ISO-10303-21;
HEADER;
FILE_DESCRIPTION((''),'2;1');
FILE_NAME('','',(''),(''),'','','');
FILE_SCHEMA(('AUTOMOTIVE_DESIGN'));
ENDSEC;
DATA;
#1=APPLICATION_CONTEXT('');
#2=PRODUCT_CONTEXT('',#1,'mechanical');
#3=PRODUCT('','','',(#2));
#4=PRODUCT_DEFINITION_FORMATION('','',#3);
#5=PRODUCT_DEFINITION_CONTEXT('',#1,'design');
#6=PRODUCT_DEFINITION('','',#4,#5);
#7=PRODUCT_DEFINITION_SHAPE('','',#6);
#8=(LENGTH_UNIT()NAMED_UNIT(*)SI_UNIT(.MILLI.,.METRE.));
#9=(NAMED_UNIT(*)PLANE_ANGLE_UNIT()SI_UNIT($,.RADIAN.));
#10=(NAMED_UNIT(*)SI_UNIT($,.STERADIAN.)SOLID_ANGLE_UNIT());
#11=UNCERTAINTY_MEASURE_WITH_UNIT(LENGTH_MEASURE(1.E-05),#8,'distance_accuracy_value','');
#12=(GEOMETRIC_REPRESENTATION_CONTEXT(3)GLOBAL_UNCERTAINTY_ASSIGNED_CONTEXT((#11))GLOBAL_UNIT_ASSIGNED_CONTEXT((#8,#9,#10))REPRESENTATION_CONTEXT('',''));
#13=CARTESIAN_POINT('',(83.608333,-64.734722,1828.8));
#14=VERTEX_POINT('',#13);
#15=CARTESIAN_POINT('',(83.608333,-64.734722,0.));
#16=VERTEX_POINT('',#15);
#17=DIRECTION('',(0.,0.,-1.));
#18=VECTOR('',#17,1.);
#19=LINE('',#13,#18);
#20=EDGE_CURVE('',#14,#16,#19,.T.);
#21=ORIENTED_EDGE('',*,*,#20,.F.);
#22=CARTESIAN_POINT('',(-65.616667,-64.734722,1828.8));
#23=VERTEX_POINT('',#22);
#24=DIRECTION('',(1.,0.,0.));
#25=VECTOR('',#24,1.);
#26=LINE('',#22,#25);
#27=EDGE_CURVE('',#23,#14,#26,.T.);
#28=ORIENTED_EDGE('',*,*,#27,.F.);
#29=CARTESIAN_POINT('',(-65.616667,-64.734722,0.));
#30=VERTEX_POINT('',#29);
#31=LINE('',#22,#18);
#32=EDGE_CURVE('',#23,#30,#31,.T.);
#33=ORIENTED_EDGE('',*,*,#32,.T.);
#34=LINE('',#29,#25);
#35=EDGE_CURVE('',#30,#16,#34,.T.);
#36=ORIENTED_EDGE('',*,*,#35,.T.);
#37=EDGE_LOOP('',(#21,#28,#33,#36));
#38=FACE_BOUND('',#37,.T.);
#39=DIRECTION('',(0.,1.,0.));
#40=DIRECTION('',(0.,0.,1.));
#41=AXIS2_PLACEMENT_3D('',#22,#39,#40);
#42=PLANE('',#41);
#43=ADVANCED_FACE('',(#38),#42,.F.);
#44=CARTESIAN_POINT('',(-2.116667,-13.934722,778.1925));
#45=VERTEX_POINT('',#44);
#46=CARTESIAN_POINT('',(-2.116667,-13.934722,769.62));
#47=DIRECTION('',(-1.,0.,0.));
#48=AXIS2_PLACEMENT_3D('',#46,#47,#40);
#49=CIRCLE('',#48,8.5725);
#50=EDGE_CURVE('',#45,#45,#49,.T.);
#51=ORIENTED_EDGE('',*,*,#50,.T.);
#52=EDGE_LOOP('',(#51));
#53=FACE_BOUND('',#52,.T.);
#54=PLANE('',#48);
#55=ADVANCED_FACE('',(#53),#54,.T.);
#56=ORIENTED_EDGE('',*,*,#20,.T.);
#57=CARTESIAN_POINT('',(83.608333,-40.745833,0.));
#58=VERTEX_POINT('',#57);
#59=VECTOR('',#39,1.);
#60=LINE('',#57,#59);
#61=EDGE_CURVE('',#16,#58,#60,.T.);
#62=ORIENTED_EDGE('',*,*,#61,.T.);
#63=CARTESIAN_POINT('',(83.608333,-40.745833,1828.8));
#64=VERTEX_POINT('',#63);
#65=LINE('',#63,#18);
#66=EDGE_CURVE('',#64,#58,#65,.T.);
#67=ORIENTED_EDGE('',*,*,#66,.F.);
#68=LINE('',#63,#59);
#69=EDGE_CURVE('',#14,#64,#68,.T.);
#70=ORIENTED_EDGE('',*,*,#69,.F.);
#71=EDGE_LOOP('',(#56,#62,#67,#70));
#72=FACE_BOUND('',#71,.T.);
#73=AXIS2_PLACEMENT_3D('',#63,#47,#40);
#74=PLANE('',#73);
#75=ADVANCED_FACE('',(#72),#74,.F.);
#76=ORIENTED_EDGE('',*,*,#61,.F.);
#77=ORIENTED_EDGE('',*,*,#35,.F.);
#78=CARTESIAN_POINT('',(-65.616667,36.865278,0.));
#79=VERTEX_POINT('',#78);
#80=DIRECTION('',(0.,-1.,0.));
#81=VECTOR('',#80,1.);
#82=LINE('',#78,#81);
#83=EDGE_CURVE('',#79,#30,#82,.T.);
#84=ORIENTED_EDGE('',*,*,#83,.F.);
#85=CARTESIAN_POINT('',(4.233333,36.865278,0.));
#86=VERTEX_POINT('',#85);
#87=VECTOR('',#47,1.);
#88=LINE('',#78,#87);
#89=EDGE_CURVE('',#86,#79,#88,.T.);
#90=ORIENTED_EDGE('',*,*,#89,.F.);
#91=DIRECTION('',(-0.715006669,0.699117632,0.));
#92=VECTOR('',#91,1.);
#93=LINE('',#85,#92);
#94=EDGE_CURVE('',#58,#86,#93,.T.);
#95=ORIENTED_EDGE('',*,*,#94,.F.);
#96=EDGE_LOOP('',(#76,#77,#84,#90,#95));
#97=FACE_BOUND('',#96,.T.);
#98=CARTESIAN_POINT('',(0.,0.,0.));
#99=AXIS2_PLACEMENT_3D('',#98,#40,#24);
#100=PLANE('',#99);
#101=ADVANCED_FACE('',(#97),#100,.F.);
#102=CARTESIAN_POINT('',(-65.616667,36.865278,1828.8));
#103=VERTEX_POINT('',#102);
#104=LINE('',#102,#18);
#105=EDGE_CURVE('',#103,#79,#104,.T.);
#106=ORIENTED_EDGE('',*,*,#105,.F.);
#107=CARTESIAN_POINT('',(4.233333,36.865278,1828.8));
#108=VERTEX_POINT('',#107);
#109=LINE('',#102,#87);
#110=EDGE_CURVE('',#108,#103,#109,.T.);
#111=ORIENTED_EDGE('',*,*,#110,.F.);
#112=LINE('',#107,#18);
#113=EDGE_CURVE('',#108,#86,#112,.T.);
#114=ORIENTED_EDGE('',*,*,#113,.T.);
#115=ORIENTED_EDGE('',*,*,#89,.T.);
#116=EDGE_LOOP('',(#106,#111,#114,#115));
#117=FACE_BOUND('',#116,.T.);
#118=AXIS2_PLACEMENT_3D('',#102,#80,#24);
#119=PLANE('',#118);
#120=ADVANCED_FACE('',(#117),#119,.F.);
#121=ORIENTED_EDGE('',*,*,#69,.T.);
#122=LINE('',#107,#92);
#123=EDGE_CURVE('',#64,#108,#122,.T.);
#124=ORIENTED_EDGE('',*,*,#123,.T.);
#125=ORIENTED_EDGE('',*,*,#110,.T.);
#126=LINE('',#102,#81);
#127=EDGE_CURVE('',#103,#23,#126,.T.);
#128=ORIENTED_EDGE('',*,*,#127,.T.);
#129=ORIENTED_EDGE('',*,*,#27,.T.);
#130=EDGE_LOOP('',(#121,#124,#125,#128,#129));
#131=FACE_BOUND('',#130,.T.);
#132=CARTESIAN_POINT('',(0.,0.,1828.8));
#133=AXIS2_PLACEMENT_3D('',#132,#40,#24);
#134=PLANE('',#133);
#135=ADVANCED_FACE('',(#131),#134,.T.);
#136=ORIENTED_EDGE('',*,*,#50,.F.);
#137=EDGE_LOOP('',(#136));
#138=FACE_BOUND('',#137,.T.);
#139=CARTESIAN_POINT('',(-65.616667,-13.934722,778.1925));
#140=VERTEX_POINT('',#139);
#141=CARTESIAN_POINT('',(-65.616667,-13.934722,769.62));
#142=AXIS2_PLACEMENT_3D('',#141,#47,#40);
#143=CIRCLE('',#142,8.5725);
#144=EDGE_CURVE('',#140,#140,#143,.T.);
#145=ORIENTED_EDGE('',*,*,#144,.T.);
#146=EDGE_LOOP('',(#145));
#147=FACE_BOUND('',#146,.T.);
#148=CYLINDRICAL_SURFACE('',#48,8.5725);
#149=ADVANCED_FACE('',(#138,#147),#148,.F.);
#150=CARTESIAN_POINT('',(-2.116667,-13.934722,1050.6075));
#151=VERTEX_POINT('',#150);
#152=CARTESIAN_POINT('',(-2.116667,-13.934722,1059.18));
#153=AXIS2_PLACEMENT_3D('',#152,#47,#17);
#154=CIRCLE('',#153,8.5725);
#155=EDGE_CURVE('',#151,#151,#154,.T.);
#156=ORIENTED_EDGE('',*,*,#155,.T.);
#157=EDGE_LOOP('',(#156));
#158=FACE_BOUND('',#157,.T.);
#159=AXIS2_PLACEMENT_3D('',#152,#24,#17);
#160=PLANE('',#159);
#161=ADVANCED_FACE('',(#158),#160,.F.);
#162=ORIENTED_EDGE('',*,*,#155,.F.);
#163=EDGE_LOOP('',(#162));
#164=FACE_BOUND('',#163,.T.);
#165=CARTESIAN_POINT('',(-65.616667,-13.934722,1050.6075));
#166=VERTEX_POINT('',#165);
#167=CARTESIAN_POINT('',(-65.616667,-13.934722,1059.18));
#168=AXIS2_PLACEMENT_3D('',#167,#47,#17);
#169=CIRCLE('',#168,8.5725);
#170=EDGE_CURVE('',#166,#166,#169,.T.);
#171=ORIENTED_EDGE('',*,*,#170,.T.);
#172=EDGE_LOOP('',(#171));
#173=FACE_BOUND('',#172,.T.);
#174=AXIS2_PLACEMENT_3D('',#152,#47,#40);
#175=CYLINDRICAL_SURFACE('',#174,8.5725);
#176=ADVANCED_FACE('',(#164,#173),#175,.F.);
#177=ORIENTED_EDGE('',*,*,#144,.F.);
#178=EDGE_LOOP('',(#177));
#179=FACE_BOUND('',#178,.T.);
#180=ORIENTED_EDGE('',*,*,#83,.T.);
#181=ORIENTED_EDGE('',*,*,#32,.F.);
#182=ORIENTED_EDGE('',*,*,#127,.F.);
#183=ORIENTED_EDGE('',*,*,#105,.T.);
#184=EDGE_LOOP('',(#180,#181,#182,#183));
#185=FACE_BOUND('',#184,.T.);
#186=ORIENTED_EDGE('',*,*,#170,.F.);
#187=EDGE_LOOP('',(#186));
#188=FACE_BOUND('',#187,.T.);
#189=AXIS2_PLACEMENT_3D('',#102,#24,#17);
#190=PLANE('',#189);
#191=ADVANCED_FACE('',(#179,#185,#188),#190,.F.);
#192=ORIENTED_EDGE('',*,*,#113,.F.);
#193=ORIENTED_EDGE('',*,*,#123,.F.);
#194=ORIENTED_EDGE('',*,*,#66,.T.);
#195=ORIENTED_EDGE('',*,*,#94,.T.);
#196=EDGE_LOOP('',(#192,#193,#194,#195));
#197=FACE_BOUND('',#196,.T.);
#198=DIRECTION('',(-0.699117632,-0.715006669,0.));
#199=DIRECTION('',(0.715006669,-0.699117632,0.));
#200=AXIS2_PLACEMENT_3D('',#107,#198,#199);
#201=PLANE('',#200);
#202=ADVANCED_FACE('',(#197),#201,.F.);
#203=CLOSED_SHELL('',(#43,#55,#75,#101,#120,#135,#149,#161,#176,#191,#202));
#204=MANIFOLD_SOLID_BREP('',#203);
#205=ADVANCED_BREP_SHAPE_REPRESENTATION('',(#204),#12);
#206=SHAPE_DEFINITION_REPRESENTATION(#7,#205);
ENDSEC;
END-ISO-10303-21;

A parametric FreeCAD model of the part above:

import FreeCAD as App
import Part
import Sketcher

V = App.Vector
Q = App.Units.Quantity

doc = App.newDocument("Part")
body = doc.addObject("PartDesign::Body", "Body")

sketch1 = body.newObject("Sketcher::SketchObject", "Sketch")
sketch1.AttachmentSupport = (doc.getObject("XY_Plane"), [""])
sketch1.MapMode = "FlatFace"
sketch1.addGeometry([
    Part.LineSegment(V(83.608333, -40.745833, 0), V(4.233333, 36.865278, 0)),
    Part.LineSegment(V(4.233333, 36.865278, 0), V(-65.616667, 36.865278, 0)),
    Part.LineSegment(V(-65.616667, 36.865278, 0), V(-65.616667, -64.734722, 0)),
    Part.LineSegment(V(-65.616667, -64.734722, 0), V(83.608333, -64.734722, 0)),
    Part.LineSegment(V(83.608333, -64.734722, 0), V(83.608333, -40.745833, 0)),
], False)
sketch1.addConstraint([
    Sketcher.Constraint("Coincident", 0, 2, 1, 1),
    Sketcher.Constraint("Coincident", 1, 2, 2, 1),
    Sketcher.Constraint("Coincident", 2, 2, 3, 1),
    Sketcher.Constraint("Coincident", 3, 2, 4, 1),
    Sketcher.Constraint("Coincident", 4, 2, 0, 1),
    Sketcher.Constraint("Horizontal", 1),
    Sketcher.Constraint("Vertical", 2),
    Sketcher.Constraint("Horizontal", 3),
    Sketcher.Constraint("Vertical", 4),
    Sketcher.Constraint("DistanceY", 2, 2, 2, 1, Q("4 in")),
    Sketcher.Constraint("DistanceX", 1, 2, 1, 1, Q("2.75 in")),
    Sketcher.Constraint("DistanceX", 3, 1, 3, 2, Q("5.875 in")),
    Sketcher.Constraint("DistanceY", 4, 1, 4, 2, Q("23.988889 mm")),
    Sketcher.Constraint("DistanceX", -1, 1, 0, 2, Q("4.233333 mm")),
    Sketcher.Constraint("DistanceY", -1, 1, 0, 2, Q("36.865278 mm")),
])
pad1 = body.newObject("PartDesign::Pad", "Pad")
pad1.Profile = sketch1
pad1.Length = Q("72 in")

sketch2 = body.newObject("Sketcher::SketchObject", "Sketch001")
sketch2.AttachmentSupport = (doc.getObject("YZ_Plane"), [""])
sketch2.MapMode = "FlatFace"
sketch2.AttachmentOffset = App.Placement(V(0, 0, -65.616667), App.Rotation())
sketch2.addGeometry([
    Part.Circle(V(-13.934722, 769.62, 0), V(0, 0, 1), 8.5725),
    Part.Circle(V(-13.934722, 1059.18, 0), V(0, 0, 1), 8.5725),
], False)
sketch2.addConstraint([
    Sketcher.Constraint("Equal", 0, 1),
    Sketcher.Constraint("Vertical", 0, 3, 1, 3),
    Sketcher.Constraint("Diameter", 0, Q("0.675 in")),
    Sketcher.Constraint("DistanceY", -1, 1, 0, 3, Q("30.3 in")),
    Sketcher.Constraint("DistanceY", -1, 1, 1, 3, Q("41.7 in")),
    Sketcher.Constraint("DistanceX", 0, 3, -1, 1, Q("13.934722 mm")),
])
pocket1 = body.newObject("PartDesign::Pocket", "Pocket")
pocket1.Profile = sketch2
pocket1.Length = Q("2.5 in")
pocket1.Reversed = True

doc.recompute()
